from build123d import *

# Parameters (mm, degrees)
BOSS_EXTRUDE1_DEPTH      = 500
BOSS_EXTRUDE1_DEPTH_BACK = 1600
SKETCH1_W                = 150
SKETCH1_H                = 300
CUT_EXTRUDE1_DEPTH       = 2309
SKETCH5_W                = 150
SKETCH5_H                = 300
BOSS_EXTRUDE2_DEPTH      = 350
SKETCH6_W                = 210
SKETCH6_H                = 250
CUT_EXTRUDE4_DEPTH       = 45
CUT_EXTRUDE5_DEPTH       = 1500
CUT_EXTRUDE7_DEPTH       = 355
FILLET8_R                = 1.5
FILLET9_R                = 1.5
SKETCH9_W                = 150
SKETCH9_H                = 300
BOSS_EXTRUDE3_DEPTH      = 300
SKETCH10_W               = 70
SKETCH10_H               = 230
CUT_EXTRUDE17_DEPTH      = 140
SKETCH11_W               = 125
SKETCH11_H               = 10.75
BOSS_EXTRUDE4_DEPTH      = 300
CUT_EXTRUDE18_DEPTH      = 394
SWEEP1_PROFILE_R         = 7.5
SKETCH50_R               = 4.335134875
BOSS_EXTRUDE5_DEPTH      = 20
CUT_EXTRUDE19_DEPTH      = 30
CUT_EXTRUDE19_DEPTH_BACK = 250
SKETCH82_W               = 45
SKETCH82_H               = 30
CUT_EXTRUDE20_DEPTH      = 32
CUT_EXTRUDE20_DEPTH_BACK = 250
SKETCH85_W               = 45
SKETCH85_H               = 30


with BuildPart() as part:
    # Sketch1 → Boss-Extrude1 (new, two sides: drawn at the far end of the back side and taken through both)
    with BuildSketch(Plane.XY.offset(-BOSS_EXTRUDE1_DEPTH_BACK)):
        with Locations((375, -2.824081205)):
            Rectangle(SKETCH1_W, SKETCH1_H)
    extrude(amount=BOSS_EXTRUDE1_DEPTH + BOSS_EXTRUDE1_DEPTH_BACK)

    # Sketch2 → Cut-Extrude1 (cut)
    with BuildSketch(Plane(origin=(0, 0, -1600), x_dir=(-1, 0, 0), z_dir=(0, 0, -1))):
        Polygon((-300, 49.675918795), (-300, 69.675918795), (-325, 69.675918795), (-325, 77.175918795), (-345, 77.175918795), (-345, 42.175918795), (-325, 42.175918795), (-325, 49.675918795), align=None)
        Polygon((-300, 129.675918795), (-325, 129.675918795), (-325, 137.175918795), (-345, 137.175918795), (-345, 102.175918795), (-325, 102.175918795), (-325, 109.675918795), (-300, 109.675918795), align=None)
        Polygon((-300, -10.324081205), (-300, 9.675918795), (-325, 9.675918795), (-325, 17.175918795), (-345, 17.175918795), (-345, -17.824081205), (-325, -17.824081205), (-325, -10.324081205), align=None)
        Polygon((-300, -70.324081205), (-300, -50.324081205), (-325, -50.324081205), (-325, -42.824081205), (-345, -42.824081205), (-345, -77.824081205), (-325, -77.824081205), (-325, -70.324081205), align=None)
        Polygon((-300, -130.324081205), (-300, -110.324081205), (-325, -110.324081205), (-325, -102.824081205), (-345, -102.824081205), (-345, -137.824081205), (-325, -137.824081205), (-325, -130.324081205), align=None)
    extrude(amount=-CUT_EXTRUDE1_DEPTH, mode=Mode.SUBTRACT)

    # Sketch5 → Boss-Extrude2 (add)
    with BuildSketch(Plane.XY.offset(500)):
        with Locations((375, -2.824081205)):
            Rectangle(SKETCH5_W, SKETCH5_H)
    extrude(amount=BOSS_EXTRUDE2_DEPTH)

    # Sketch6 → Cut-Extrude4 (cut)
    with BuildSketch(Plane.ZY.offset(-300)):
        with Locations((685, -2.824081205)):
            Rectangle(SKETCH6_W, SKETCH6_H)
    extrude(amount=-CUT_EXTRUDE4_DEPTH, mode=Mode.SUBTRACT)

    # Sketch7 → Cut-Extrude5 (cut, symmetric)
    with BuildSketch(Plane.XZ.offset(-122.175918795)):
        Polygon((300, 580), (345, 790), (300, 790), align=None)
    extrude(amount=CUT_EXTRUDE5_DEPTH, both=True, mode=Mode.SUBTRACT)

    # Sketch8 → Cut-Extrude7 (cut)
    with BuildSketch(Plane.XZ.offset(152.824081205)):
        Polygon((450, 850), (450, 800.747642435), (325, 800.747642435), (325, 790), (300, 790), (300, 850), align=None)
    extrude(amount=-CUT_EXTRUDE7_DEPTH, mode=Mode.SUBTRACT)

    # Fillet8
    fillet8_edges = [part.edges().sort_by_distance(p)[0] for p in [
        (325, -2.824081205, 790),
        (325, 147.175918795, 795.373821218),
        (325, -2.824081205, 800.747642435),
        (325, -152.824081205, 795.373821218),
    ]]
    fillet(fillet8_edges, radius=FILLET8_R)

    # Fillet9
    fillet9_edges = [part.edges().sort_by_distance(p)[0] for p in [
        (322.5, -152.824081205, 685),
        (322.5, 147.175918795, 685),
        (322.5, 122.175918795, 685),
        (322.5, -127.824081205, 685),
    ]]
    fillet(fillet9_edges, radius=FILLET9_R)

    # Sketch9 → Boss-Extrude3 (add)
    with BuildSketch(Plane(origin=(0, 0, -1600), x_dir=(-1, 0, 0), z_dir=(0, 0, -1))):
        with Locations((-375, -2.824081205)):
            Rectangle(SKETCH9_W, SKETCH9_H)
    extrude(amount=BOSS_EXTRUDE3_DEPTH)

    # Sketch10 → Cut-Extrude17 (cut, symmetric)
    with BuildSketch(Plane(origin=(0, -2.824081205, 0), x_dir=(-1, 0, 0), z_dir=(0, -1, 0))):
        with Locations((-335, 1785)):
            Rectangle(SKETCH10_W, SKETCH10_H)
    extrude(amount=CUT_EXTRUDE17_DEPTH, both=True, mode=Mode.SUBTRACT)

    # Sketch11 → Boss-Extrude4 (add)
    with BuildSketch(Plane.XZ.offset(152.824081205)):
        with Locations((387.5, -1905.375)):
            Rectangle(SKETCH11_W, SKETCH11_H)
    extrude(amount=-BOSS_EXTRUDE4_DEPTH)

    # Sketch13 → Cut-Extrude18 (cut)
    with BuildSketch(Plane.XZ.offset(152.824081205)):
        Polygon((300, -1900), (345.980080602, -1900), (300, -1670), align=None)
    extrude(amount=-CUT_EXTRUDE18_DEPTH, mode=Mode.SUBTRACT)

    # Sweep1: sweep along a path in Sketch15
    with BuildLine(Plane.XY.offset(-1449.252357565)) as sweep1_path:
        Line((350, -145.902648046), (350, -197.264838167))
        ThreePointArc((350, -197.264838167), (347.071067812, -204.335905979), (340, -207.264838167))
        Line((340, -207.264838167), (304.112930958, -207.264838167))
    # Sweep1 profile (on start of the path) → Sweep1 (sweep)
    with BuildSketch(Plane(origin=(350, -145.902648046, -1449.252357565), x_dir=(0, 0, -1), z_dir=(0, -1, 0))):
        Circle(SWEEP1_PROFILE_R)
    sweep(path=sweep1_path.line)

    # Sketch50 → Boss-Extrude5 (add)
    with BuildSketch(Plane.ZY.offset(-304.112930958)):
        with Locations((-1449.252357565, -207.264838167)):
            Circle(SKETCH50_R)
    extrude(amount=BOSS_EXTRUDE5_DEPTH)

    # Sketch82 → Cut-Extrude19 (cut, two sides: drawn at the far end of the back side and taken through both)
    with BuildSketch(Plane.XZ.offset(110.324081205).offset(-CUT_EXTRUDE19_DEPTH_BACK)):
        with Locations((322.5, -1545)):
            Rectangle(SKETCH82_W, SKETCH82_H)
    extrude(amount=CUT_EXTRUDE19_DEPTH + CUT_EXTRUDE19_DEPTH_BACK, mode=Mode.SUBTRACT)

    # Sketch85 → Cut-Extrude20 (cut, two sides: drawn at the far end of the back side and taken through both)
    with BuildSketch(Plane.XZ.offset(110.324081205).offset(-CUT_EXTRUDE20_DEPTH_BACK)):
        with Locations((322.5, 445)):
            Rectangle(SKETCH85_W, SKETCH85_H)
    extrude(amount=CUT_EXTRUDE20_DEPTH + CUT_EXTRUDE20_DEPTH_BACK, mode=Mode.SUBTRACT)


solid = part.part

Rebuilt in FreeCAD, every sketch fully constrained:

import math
import FreeCAD as App
import Part
import Sketcher
Q = App.Units.Quantity


def edges_at(feature, points):
    """Names of the edges that pass closest to the given points."""
    edges = feature.Shape.Edges
    near = lambda p: min(range(len(edges)), key=lambda i: edges[i].distToShape(Part.Vertex(*p))[0])
    return sorted({f"Edge{near(p) + 1}" for p in points})


def add_polygon(sketch, points):
    """Adds a closed chain of lines whose ends are joined by coincident constraints."""
    first, n = sketch.GeometryCount, len(points)
    for a, b in zip(points, points[1:] + points[:1]):
        sketch.addGeometry(Part.LineSegment(App.Vector(*a, 0), App.Vector(*b, 0)), False)
    for i in range(n):
        sketch.addConstraint(Sketcher.Constraint("Coincident", first + i, 2, first + (i + 1) % n, 1))

doc = App.newDocument("Part")
body = doc.addObject("PartDesign::Body", "Body")

# Sketch on XY plane
sketch1 = doc.addObject("Sketcher::SketchObject", "Sketch")
body.addObject(sketch1)
sketch1.AttachmentSupport = (doc.XY_Plane, [""])
sketch1.MapMode = "FlatFace"
add_polygon(sketch1, [(300, 147.175919), (300, -152.824081), (450, -152.824081), (450, 147.175919)])  # lines 0-3
sketch1.addConstraint(Sketcher.Constraint("Vertical", 0))
sketch1.addConstraint(Sketcher.Constraint("Horizontal", 1))
sketch1.addConstraint(Sketcher.Constraint("Vertical", 2))
sketch1.addConstraint(Sketcher.Constraint("Horizontal", 3))
sketch1.addConstraint(Sketcher.Constraint("DistanceX", 1, 1, 1, 2, Q("150 mm")))
sketch1.addConstraint(Sketcher.Constraint("DistanceY", 0, 2, 0, 1, Q("300 mm")))
sketch1.addConstraint(Sketcher.Constraint("DistanceX", -1, 1, 0, 2, Q("300 mm")))
sketch1.addConstraint(Sketcher.Constraint("DistanceY", 0, 2, -1, 1, Q("152.824081 mm")))
pad1 = doc.addObject("PartDesign::Pad", "Pad")
body.addObject(pad1)
pad1.Profile = sketch1
pad1.Type = "TwoLengths"
pad1.Length = 500
pad1.Length2 = 1600

# Sketch on XY plane
sketch2 = doc.addObject("Sketcher::SketchObject", "Sketch001")
body.addObject(sketch2)
sketch2.AttachmentSupport = (doc.XY_Plane, [""])
sketch2.MapMode = "FlatFace"
sketch2.AttachmentOffset = App.Placement(App.Vector(0, 0, -1600), App.Rotation())
add_polygon(sketch2, [(300, 49.675919), (300, 69.675919), (325, 69.675919), (325, 77.175919), (345, 77.175919), (345, 42.175919), (325, 42.175919), (325, 49.675919)])  # lines 0-7
add_polygon(sketch2, [(300, 129.675919), (325, 129.675919), (325, 137.175919), (345, 137.175919), (345, 102.175919), (325, 102.175919), (325, 109.675919), (300, 109.675919)])  # lines 8-15
add_polygon(sketch2, [(300, -10.324081), (300, 9.675919), (325, 9.675919), (325, 17.175919), (345, 17.175919), (345, -17.824081), (325, -17.824081), (325, -10.324081)])  # lines 16-23
add_polygon(sketch2, [(300, -70.324081), (300, -50.324081), (325, -50.324081), (325, -42.824081), (345, -42.824081), (345, -77.824081), (325, -77.824081), (325, -70.324081)])  # lines 24-31
add_polygon(sketch2, [(300, -130.324081), (300, -110.324081), (325, -110.324081), (325, -102.824081), (345, -102.824081), (345, -137.824081), (325, -137.824081), (325, -130.324081)])  # lines 32-39
sketch2.addConstraint(Sketcher.Constraint("Vertical", 0))
sketch2.addConstraint(Sketcher.Constraint("Horizontal", 1))
sketch2.addConstraint(Sketcher.Constraint("Vertical", 2))
sketch2.addConstraint(Sketcher.Constraint("Horizontal", 3))
sketch2.addConstraint(Sketcher.Constraint("Vertical", 4))
sketch2.addConstraint(Sketcher.Constraint("Horizontal", 5))
sketch2.addConstraint(Sketcher.Constraint("Vertical", 6))
sketch2.addConstraint(Sketcher.Constraint("Horizontal", 7))
sketch2.addConstraint(Sketcher.Constraint("Horizontal", 8))
sketch2.addConstraint(Sketcher.Constraint("Vertical", 9))
sketch2.addConstraint(Sketcher.Constraint("Horizontal", 10))
sketch2.addConstraint(Sketcher.Constraint("Vertical", 11))
sketch2.addConstraint(Sketcher.Constraint("Horizontal", 12))
sketch2.addConstraint(Sketcher.Constraint("Vertical", 13))
sketch2.addConstraint(Sketcher.Constraint("Horizontal", 14))
sketch2.addConstraint(Sketcher.Constraint("Vertical", 15))
sketch2.addConstraint(Sketcher.Constraint("Vertical", 16))
sketch2.addConstraint(Sketcher.Constraint("Horizontal", 17))
sketch2.addConstraint(Sketcher.Constraint("Vertical", 18))
sketch2.addConstraint(Sketcher.Constraint("Horizontal", 19))
sketch2.addConstraint(Sketcher.Constraint("Vertical", 20))
sketch2.addConstraint(Sketcher.Constraint("Horizontal", 21))
sketch2.addConstraint(Sketcher.Constraint("Vertical", 22))
sketch2.addConstraint(Sketcher.Constraint("Horizontal", 23))
sketch2.addConstraint(Sketcher.Constraint("Vertical", 24))
sketch2.addConstraint(Sketcher.Constraint("Horizontal", 25))
sketch2.addConstraint(Sketcher.Constraint("Vertical", 26))
sketch2.addConstraint(Sketcher.Constraint("Horizontal", 27))
sketch2.addConstraint(Sketcher.Constraint("Vertical", 28))
sketch2.addConstraint(Sketcher.Constraint("Horizontal", 29))
sketch2.addConstraint(Sketcher.Constraint("Vertical", 30))
sketch2.addConstraint(Sketcher.Constraint("Horizontal", 31))
sketch2.addConstraint(Sketcher.Constraint("Vertical", 32))
sketch2.addConstraint(Sketcher.Constraint("Horizontal", 33))
sketch2.addConstraint(Sketcher.Constraint("Vertical", 34))
sketch2.addConstraint(Sketcher.Constraint("Horizontal", 35))
sketch2.addConstraint(Sketcher.Constraint("Vertical", 36))
sketch2.addConstraint(Sketcher.Constraint("Horizontal", 37))
sketch2.addConstraint(Sketcher.Constraint("Vertical", 38))
sketch2.addConstraint(Sketcher.Constraint("Horizontal", 39))
sketch2.addConstraint(Sketcher.Constraint("Vertical", 2, 2, 5, 2))
sketch2.addConstraint(Sketcher.Constraint("Vertical", 6, 2, 8, 2))
sketch2.addConstraint(Sketcher.Constraint("Vertical", 4, 2, 10, 2))
sketch2.addConstraint(Sketcher.Constraint("Vertical", 9, 2, 12, 2))
sketch2.addConstraint(Sketcher.Constraint("Vertical", 7, 2, 14, 2))
sketch2.addConstraint(Sketcher.Constraint("Vertical", 15, 2, 16, 2))
sketch2.addConstraint(Sketcher.Constraint("Vertical", 13, 2, 17, 2))
sketch2.addConstraint(Sketcher.Constraint("Vertical", 11, 2, 19, 2))
sketch2.addConstraint(Sketcher.Constraint("Vertical", 18, 2, 21, 2))
sketch2.addConstraint(Sketcher.Constraint("Vertical", 23, 2, 24, 2))
sketch2.addConstraint(Sketcher.Constraint("Vertical", 22, 2, 25, 2))
sketch2.addConstraint(Sketcher.Constraint("Vertical", 20, 2, 27, 2))
sketch2.addConstraint(Sketcher.Constraint("Vertical", 26, 2, 29, 2))
sketch2.addConstraint(Sketcher.Constraint("Vertical", 31, 2, 32, 2))
sketch2.addConstraint(Sketcher.Constraint("Vertical", 30, 2, 33, 2))
sketch2.addConstraint(Sketcher.Constraint("Vertical", 28, 2, 35, 2))
sketch2.addConstraint(Sketcher.Constraint("Vertical", 34, 2, 37, 2))
sketch2.addConstraint(Sketcher.Constraint("Equal", 37, 0))
sketch2.addConstraint(Sketcher.Constraint("Equal", 2, 6))
sketch2.addConstraint(Sketcher.Constraint("Equal", 6, 9))
sketch2.addConstraint(Sketcher.Constraint("Equal", 4, 11))
sketch2.addConstraint(Sketcher.Constraint("Equal", 9, 13))
sketch2.addConstraint(Sketcher.Constraint("Equal", 15, 16))
sketch2.addConstraint(Sketcher.Constraint("Equal", 13, 18))
sketch2.addConstraint(Sketcher.Constraint("Equal", 11, 20))
sketch2.addConstraint(Sketcher.Constraint("Equal", 16, 24))
sketch2.addConstraint(Sketcher.Constraint("Equal", 22, 26))
sketch2.addConstraint(Sketcher.Constraint("Equal", 20, 28))
sketch2.addConstraint(Sketcher.Constraint("Equal", 24, 32))
sketch2.addConstraint(Sketcher.Constraint("Equal", 30, 34))
sketch2.addConstraint(Sketcher.Constraint("Equal", 28, 36))
sketch2.addConstraint(Sketcher.Constraint("DistanceX", 1, 1, 1, 2, Q("25 mm")))
sketch2.addConstraint(Sketcher.Constraint("DistanceX", 3, 1, 3, 2, Q("20 mm")))
sketch2.addConstraint(Sketcher.Constraint("DistanceY", 4, 2, 4, 1, Q("35 mm")))
sketch2.addConstraint(Sketcher.Constraint("DistanceX", -1, 1, 0, 2, Q("300 mm")))
sketch2.addConstraint(Sketcher.Constraint("DistanceY", 1, 2, 8, 2, Q("60 mm")))
sketch2.addConstraint(Sketcher.Constraint("DistanceY", 16, 2, 7, 2, Q("40 mm")))
sketch2.addConstraint(Sketcher.Constraint("DistanceY", 24, 2, 23, 2, Q("40 mm")))
sketch2.addConstraint(Sketcher.Constraint("DistanceY", 32, 2, 31, 2, Q("40 mm")))
sketch2.addConstraint(Sketcher.Constraint("DistanceY", -1, 1, 0, 2, Q("69.675919 mm")))
pocket1 = doc.addObject("PartDesign::Pocket", "Pocket")
body.addObject(pocket1)
pocket1.Profile = sketch2
pocket1.Length = 2309
pocket1.Reversed = True

# Sketch on XY plane
sketch3 = doc.addObject("Sketcher::SketchObject", "Sketch002")
body.addObject(sketch3)
sketch3.AttachmentSupport = (doc.XY_Plane, [""])
sketch3.MapMode = "FlatFace"
sketch3.AttachmentOffset = App.Placement(App.Vector(0, 0, 500), App.Rotation())
add_polygon(sketch3, [(300, 147.175919), (300, -152.824081), (450, -152.824081), (450, 147.175919)])  # lines 0-3
sketch3.addConstraint(Sketcher.Constraint("Vertical", 0))
sketch3.addConstraint(Sketcher.Constraint("Horizontal", 1))
sketch3.addConstraint(Sketcher.Constraint("Vertical", 2))
sketch3.addConstraint(Sketcher.Constraint("Horizontal", 3))
sketch3.addConstraint(Sketcher.Constraint("DistanceX", 1, 1, 1, 2, Q("150 mm")))
sketch3.addConstraint(Sketcher.Constraint("DistanceY", 0, 2, 0, 1, Q("300 mm")))
sketch3.addConstraint(Sketcher.Constraint("DistanceX", -1, 1, 0, 2, Q("300 mm")))
sketch3.addConstraint(Sketcher.Constraint("DistanceY", 0, 2, -1, 1, Q("152.824081 mm")))
pad2 = doc.addObject("PartDesign::Pad", "Pad001")
body.addObject(pad2)
pad2.Profile = sketch3
pad2.Length = 350

# Sketch on YZ plane
sketch4 = doc.addObject("Sketcher::SketchObject", "Sketch003")
body.addObject(sketch4)
sketch4.AttachmentSupport = (doc.YZ_Plane, [""])
sketch4.MapMode = "FlatFace"
sketch4.AttachmentOffset = App.Placement(App.Vector(0, 0, 300), App.Rotation())
add_polygon(sketch4, [(122.175919, 580), (-127.824081, 580), (-127.824081, 790), (122.175919, 790)])  # lines 0-3
sketch4.addConstraint(Sketcher.Constraint("Horizontal", 0))
sketch4.addConstraint(Sketcher.Constraint("Vertical", 1))
sketch4.addConstraint(Sketcher.Constraint("Horizontal", 2))
sketch4.addConstraint(Sketcher.Constraint("Vertical", 3))
sketch4.addConstraint(Sketcher.Constraint("DistanceX", 0, 2, 0, 1, Q("250 mm")))
sketch4.addConstraint(Sketcher.Constraint("DistanceY", 1, 1, 1, 2, Q("210 mm")))
sketch4.addConstraint(Sketcher.Constraint("DistanceY", -1, 1, 0, 2, Q("580 mm")))
sketch4.addConstraint(Sketcher.Constraint("DistanceX", 0, 2, -1, 1, Q("127.824081 mm")))
pocket2 = doc.addObject("PartDesign::Pocket", "Pocket001")
body.addObject(pocket2)
pocket2.Profile = sketch4
pocket2.Length = 45
pocket2.Reversed = True

# Sketch on XZ plane
sketch5 = doc.addObject("Sketcher::SketchObject", "Sketch004")
body.addObject(sketch5)
sketch5.AttachmentSupport = (doc.XZ_Plane, [""])
sketch5.MapMode = "FlatFace"
sketch5.AttachmentOffset = App.Placement(App.Vector(0, 0, -122.175919), App.Rotation())
add_polygon(sketch5, [(300, 580), (345, 790), (300, 790)])  # lines 0-2
sketch5.addConstraint(Sketcher.Constraint("Horizontal", 1))
sketch5.addConstraint(Sketcher.Constraint("Vertical", 2))
sketch5.addConstraint(Sketcher.Constraint("DistanceX", 1, 2, 1, 1, Q("45 mm")))
sketch5.addConstraint(Sketcher.Constraint("DistanceY", 2, 2, 2, 1, Q("210 mm")))
sketch5.addConstraint(Sketcher.Constraint("DistanceX", -1, 1, 0, 2, Q("345 mm")))
sketch5.addConstraint(Sketcher.Constraint("DistanceY", -1, 1, 0, 2, Q("790 mm")))
pocket3 = doc.addObject("PartDesign::Pocket", "Pocket002")
body.addObject(pocket3)
pocket3.Profile = sketch5
pocket3.Length = 3000
pocket3.Midplane = True

# Sketch on XZ plane
sketch6 = doc.addObject("Sketcher::SketchObject", "Sketch005")
body.addObject(sketch6)
sketch6.AttachmentSupport = (doc.XZ_Plane, [""])
sketch6.MapMode = "FlatFace"
sketch6.AttachmentOffset = App.Placement(App.Vector(0, 0, 152.824081), App.Rotation())
add_polygon(sketch6, [(450, 800.747642), (450, 850), (300, 850), (300, 790), (325, 790), (325, 800.747642)])  # lines 0-5
sketch6.addConstraint(Sketcher.Constraint("Vertical", 0))
sketch6.addConstraint(Sketcher.Constraint("Horizontal", 1))
sketch6.addConstraint(Sketcher.Constraint("Vertical", 2))
sketch6.addConstraint(Sketcher.Constraint("Horizontal", 3))
sketch6.addConstraint(Sketcher.Constraint("Vertical", 4))
sketch6.addConstraint(Sketcher.Constraint("Horizontal", 5))
sketch6.addConstraint(Sketcher.Constraint("DistanceX", 1, 2, 1, 1, Q("150 mm")))
sketch6.addConstraint(Sketcher.Constraint("DistanceX", 3, 1, 3, 2, Q("25 mm")))
sketch6.addConstraint(Sketcher.Constraint("DistanceY", 2, 2, 2, 1, Q("60 mm")))
sketch6.addConstraint(Sketcher.Constraint("DistanceX", -1, 1, 0, 2, Q("450 mm")))
sketch6.addConstraint(Sketcher.Constraint("DistanceY", -1, 1, 0, 2, Q("850 mm")))
sketch6.addConstraint(Sketcher.Constraint("DistanceY", 0, 1, 0, 2, Q("49.252358 mm")))
pocket4 = doc.addObject("PartDesign::Pocket", "Pocket003")
body.addObject(pocket4)
pocket4.Profile = sketch6
pocket4.Length = 355
doc.recompute()

fillet = doc.addObject("PartDesign::Fillet", "Fillet")
body.addObject(fillet)
fillet.Base = (pocket4, edges_at(pocket4, [
    (325, -2.824, 790),
    (325, 147.176, 795.374),
    (325, -2.824, 800.748),
    (325, -152.824, 795.374),
]))
fillet.Radius = 1.5
doc.recompute()

fillet2 = doc.addObject("PartDesign::Fillet", "Fillet001")
body.addObject(fillet2)
fillet2.Base = (fillet, edges_at(fillet, [
    (322.5, -152.824, 685),
    (322.5, 147.176, 685),
    (322.5, 122.176, 685),
    (322.5, -127.824, 685),
]))
fillet2.Radius = 1.5

# Sketch on XY plane
sketch7 = doc.addObject("Sketcher::SketchObject", "Sketch006")
body.addObject(sketch7)
sketch7.AttachmentSupport = (doc.XY_Plane, [""])
sketch7.MapMode = "FlatFace"
sketch7.AttachmentOffset = App.Placement(App.Vector(0, 0, -1600), App.Rotation())
add_polygon(sketch7, [(450, 147.175919), (450, -152.824081), (300, -152.824081), (300, 147.175919)])  # lines 0-3
sketch7.addConstraint(Sketcher.Constraint("Vertical", 0))
sketch7.addConstraint(Sketcher.Constraint("Horizontal", 1))
sketch7.addConstraint(Sketcher.Constraint("Vertical", 2))
sketch7.addConstraint(Sketcher.Constraint("Horizontal", 3))
sketch7.addConstraint(Sketcher.Constraint("DistanceX", 1, 2, 1, 1, Q("150 mm")))
sketch7.addConstraint(Sketcher.Constraint("DistanceY", 0, 2, 0, 1, Q("300 mm")))
sketch7.addConstraint(Sketcher.Constraint("DistanceX", -1, 1, 0, 2, Q("450 mm")))
sketch7.addConstraint(Sketcher.Constraint("DistanceY", 0, 2, -1, 1, Q("152.824081 mm")))
pad3 = doc.addObject("PartDesign::Pad", "Pad002")
body.addObject(pad3)
pad3.Profile = sketch7
pad3.Length = 300
pad3.Reversed = True

# Sketch on XZ plane
sketch8 = doc.addObject("Sketcher::SketchObject", "Sketch007")
body.addObject(sketch8)
sketch8.AttachmentSupport = (doc.XZ_Plane, [""])
sketch8.MapMode = "FlatFace"
sketch8.AttachmentOffset = App.Placement(App.Vector(0, 0, 2.824081), App.Rotation())
add_polygon(sketch8, [(370, -1900), (370, -1670), (300, -1670), (300, -1900)])  # lines 0-3
sketch8.addConstraint(Sketcher.Constraint("Vertical", 0))
sketch8.addConstraint(Sketcher.Constraint("Horizontal", 1))
sketch8.addConstraint(Sketcher.Constraint("Vertical", 2))
sketch8.addConstraint(Sketcher.Constraint("Horizontal", 3))
sketch8.addConstraint(Sketcher.Constraint("DistanceX", 1, 2, 1, 1, Q("70 mm")))
sketch8.addConstraint(Sketcher.Constraint("DistanceY", 0, 1, 0, 2, Q("230 mm")))
sketch8.addConstraint(Sketcher.Constraint("DistanceX", -1, 1, 0, 2, Q("370 mm")))
sketch8.addConstraint(Sketcher.Constraint("DistanceY", 0, 2, -1, 1, Q("1670 mm")))
pocket5 = doc.addObject("PartDesign::Pocket", "Pocket004")
body.addObject(pocket5)
pocket5.Profile = sketch8
pocket5.Length = 280
pocket5.Midplane = True

# Sketch on XZ plane
sketch9 = doc.addObject("Sketcher::SketchObject", "Sketch008")
body.addObject(sketch9)
sketch9.AttachmentSupport = (doc.XZ_Plane, [""])
sketch9.MapMode = "FlatFace"
sketch9.AttachmentOffset = App.Placement(App.Vector(0, 0, 152.824081), App.Rotation())
add_polygon(sketch9, [(325, -1900), (325, -1910.75), (450, -1910.75), (450, -1900)])  # lines 0-3
sketch9.addConstraint(Sketcher.Constraint("Vertical", 0))
sketch9.addConstraint(Sketcher.Constraint("Horizontal", 1))
sketch9.addConstraint(Sketcher.Constraint("Vertical", 2))
sketch9.addConstraint(Sketcher.Constraint("Horizontal", 3))
sketch9.addConstraint(Sketcher.Constraint("DistanceX", 1, 1, 1, 2, Q("125 mm")))
sketch9.addConstraint(Sketcher.Constraint("DistanceX", -1, 1, 0, 2, Q("325 mm")))
sketch9.addConstraint(Sketcher.Constraint("DistanceY", 2, 2, -1, 1, Q("1900 mm")))
sketch9.addConstraint(Sketcher.Constraint("DistanceY", 0, 2, 0, 1, Q("10.75 mm")))
pad4 = doc.addObject("PartDesign::Pad", "Pad003")
body.addObject(pad4)
pad4.Profile = sketch9
pad4.Length = 300
pad4.Reversed = True

# Sketch on XZ plane
sketch10 = doc.addObject("Sketcher::SketchObject", "Sketch009")
body.addObject(sketch10)
sketch10.AttachmentSupport = (doc.XZ_Plane, [""])
sketch10.MapMode = "FlatFace"
sketch10.AttachmentOffset = App.Placement(App.Vector(0, 0, 152.824081), App.Rotation())
add_polygon(sketch10, [(300, -1900), (345.980081, -1900), (300, -1670)])  # lines 0-2
sketch10.addConstraint(Sketcher.Constraint("Horizontal", 0))
sketch10.addConstraint(Sketcher.Constraint("Vertical", 2))
sketch10.addConstraint(Sketcher.Constraint("DistanceY", 2, 2, 2, 1, Q("230 mm")))
sketch10.addConstraint(Sketcher.Constraint("DistanceY", 0, 2, -1, 1, Q("1900 mm")))
sketch10.addConstraint(Sketcher.Constraint("DistanceX", -1, 1, 1, 2, Q("300 mm")))
sketch10.addConstraint(Sketcher.Constraint("DistanceX", 0, 1, 0, 2, Q("45.980081 mm")))
pocket6 = doc.addObject("PartDesign::Pocket", "Pocket005")
body.addObject(pocket6)
pocket6.Profile = sketch10
pocket6.Length = 394

# Sketch on XZ plane
sketch11 = doc.addObject("Sketcher::SketchObject", "Sketch010")
body.addObject(sketch11)
sketch11.AttachmentSupport = (doc.XZ_Plane, [""])
sketch11.MapMode = "FlatFace"
sketch11.AttachmentOffset = App.Placement(App.Vector(0, 0, 145.902648), App.Rotation())
sketch11.addGeometry(Part.Circle(App.Vector(350, -1449.252358, 0), App.Vector(0, 0, 1), 7.5), False)
sketch11.addConstraint(Sketcher.Constraint("Diameter", 0, Q("15 mm")))
sketch11.addConstraint(Sketcher.Constraint("DistanceX", -1, 1, 0, 3, Q("350 mm")))
sketch11.addConstraint(Sketcher.Constraint("DistanceY", 0, 3, -1, 1, Q("1449.252358 mm")))

# Sketch on XY plane
sketch12 = doc.addObject("Sketcher::SketchObject", "Sketch011")
body.addObject(sketch12)
sketch12.AttachmentSupport = (doc.XY_Plane, [""])
sketch12.MapMode = "FlatFace"
sketch12.AttachmentOffset = App.Placement(App.Vector(0, 0, -1449.252358), App.Rotation())
sketch12.addGeometry(Part.LineSegment(App.Vector(350, -145.902648, 0), App.Vector(350, -197.264838, 0)), False)
sketch12.addGeometry(Part.ArcOfCircle(Part.Circle(App.Vector(340, -197.264838, 0), App.Vector(0, 0, 1), 10), math.radians(-90), math.radians(0)), False)
sketch12.addGeometry(Part.LineSegment(App.Vector(340, -207.264838, 0), App.Vector(304.112931, -207.264838, 0)), False)
sketch12.addConstraint(Sketcher.Constraint("Tangent", 0, 2, 1, 2))
sketch12.addConstraint(Sketcher.Constraint("Tangent", 1, 1, 2, 1))
sketch12.addConstraint(Sketcher.Constraint("Vertical", 0))
sketch12.addConstraint(Sketcher.Constraint("Horizontal", 2))
sketch12.addConstraint(Sketcher.Constraint("Radius", 1, Q("10 mm")))
sketch12.addConstraint(Sketcher.Constraint("DistanceX", -1, 1, 1, 3, Q("340 mm")))
sketch12.addConstraint(Sketcher.Constraint("DistanceX", 2, 2, 2, 1, Q("35.887069 mm")))
sketch12.addConstraint(Sketcher.Constraint("DistanceY", 0, 2, 0, 1, Q("51.36219 mm")))
sketch12.addConstraint(Sketcher.Constraint("DistanceY", 1, 3, -1, 1, Q("197.264838 mm")))
doc.recompute()

additivepipe = doc.addObject("PartDesign::AdditivePipe", "AdditivePipe")
body.addObject(additivepipe)
additivepipe.Profile = sketch11
additivepipe.Spine = (sketch12, ["Edge1", "Edge2", "Edge3"])

# Sketch on YZ plane
sketch13 = doc.addObject("Sketcher::SketchObject", "Sketch012")
body.addObject(sketch13)
sketch13.AttachmentSupport = (doc.YZ_Plane, [""])
sketch13.MapMode = "FlatFace"
sketch13.AttachmentOffset = App.Placement(App.Vector(0, 0, 304.112931), App.Rotation())
sketch13.addGeometry(Part.Circle(App.Vector(-207.264838, -1449.252358, 0), App.Vector(0, 0, 1), 4.335135), False)
sketch13.addConstraint(Sketcher.Constraint("Diameter", 0, Q("8.67027 mm")))
sketch13.addConstraint(Sketcher.Constraint("DistanceX", 0, 3, -1, 1, Q("207.264838 mm")))
sketch13.addConstraint(Sketcher.Constraint("DistanceY", 0, 3, -1, 1, Q("1449.252358 mm")))
pad5 = doc.addObject("PartDesign::Pad", "Pad004")
body.addObject(pad5)
pad5.Profile = sketch13
pad5.Length = 20
pad5.Reversed = True

# Sketch on XZ plane
sketch14 = doc.addObject("Sketcher::SketchObject", "Sketch013")
body.addObject(sketch14)
sketch14.AttachmentSupport = (doc.XZ_Plane, [""])
sketch14.MapMode = "FlatFace"
sketch14.AttachmentOffset = App.Placement(App.Vector(0, 0, 110.324081), App.Rotation())
add_polygon(sketch14, [(300, -1530), (300, -1560), (345, -1560), (345, -1530)])  # lines 0-3
sketch14.addConstraint(Sketcher.Constraint("Vertical", 0))
sketch14.addConstraint(Sketcher.Constraint("Horizontal", 1))
sketch14.addConstraint(Sketcher.Constraint("Vertical", 2))
sketch14.addConstraint(Sketcher.Constraint("Horizontal", 3))
sketch14.addConstraint(Sketcher.Constraint("DistanceX", 1, 1, 1, 2, Q("45 mm")))
sketch14.addConstraint(Sketcher.Constraint("DistanceY", 0, 2, 0, 1, Q("30 mm")))
sketch14.addConstraint(Sketcher.Constraint("DistanceX", -1, 1, 0, 2, Q("300 mm")))
sketch14.addConstraint(Sketcher.Constraint("DistanceY", 0, 2, -1, 1, Q("1560 mm")))
pocket7 = doc.addObject("PartDesign::Pocket", "Pocket006")
body.addObject(pocket7)
pocket7.Profile = sketch14
pocket7.Type = "TwoLengths"
pocket7.Length = 30
pocket7.Length2 = 250
pocket7.Reversed = True

# Sketch on XZ plane
sketch15 = doc.addObject("Sketcher::SketchObject", "Sketch014")
body.addObject(sketch15)
sketch15.AttachmentSupport = (doc.XZ_Plane, [""])
sketch15.MapMode = "FlatFace"
sketch15.AttachmentOffset = App.Placement(App.Vector(0, 0, 110.324081), App.Rotation())
add_polygon(sketch15, [(300, 460), (300, 430), (345, 430), (345, 460)])  # lines 0-3
sketch15.addConstraint(Sketcher.Constraint("Vertical", 0))
sketch15.addConstraint(Sketcher.Constraint("Horizontal", 1))
sketch15.addConstraint(Sketcher.Constraint("Vertical", 2))
sketch15.addConstraint(Sketcher.Constraint("Horizontal", 3))
sketch15.addConstraint(Sketcher.Constraint("DistanceX", 1, 1, 1, 2, Q("45 mm")))
sketch15.addConstraint(Sketcher.Constraint("DistanceY", 0, 2, 0, 1, Q("30 mm")))
sketch15.addConstraint(Sketcher.Constraint("DistanceX", -1, 1, 0, 2, Q("300 mm")))
sketch15.addConstraint(Sketcher.Constraint("DistanceY", -1, 1, 0, 2, Q("430 mm")))
pocket8 = doc.addObject("PartDesign::Pocket", "Pocket007")
body.addObject(pocket8)
pocket8.Profile = sketch15
pocket8.Type = "TwoLengths"
pocket8.Length = 32
pocket8.Length2 = 250
pocket8.Reversed = True

doc.recompute()
